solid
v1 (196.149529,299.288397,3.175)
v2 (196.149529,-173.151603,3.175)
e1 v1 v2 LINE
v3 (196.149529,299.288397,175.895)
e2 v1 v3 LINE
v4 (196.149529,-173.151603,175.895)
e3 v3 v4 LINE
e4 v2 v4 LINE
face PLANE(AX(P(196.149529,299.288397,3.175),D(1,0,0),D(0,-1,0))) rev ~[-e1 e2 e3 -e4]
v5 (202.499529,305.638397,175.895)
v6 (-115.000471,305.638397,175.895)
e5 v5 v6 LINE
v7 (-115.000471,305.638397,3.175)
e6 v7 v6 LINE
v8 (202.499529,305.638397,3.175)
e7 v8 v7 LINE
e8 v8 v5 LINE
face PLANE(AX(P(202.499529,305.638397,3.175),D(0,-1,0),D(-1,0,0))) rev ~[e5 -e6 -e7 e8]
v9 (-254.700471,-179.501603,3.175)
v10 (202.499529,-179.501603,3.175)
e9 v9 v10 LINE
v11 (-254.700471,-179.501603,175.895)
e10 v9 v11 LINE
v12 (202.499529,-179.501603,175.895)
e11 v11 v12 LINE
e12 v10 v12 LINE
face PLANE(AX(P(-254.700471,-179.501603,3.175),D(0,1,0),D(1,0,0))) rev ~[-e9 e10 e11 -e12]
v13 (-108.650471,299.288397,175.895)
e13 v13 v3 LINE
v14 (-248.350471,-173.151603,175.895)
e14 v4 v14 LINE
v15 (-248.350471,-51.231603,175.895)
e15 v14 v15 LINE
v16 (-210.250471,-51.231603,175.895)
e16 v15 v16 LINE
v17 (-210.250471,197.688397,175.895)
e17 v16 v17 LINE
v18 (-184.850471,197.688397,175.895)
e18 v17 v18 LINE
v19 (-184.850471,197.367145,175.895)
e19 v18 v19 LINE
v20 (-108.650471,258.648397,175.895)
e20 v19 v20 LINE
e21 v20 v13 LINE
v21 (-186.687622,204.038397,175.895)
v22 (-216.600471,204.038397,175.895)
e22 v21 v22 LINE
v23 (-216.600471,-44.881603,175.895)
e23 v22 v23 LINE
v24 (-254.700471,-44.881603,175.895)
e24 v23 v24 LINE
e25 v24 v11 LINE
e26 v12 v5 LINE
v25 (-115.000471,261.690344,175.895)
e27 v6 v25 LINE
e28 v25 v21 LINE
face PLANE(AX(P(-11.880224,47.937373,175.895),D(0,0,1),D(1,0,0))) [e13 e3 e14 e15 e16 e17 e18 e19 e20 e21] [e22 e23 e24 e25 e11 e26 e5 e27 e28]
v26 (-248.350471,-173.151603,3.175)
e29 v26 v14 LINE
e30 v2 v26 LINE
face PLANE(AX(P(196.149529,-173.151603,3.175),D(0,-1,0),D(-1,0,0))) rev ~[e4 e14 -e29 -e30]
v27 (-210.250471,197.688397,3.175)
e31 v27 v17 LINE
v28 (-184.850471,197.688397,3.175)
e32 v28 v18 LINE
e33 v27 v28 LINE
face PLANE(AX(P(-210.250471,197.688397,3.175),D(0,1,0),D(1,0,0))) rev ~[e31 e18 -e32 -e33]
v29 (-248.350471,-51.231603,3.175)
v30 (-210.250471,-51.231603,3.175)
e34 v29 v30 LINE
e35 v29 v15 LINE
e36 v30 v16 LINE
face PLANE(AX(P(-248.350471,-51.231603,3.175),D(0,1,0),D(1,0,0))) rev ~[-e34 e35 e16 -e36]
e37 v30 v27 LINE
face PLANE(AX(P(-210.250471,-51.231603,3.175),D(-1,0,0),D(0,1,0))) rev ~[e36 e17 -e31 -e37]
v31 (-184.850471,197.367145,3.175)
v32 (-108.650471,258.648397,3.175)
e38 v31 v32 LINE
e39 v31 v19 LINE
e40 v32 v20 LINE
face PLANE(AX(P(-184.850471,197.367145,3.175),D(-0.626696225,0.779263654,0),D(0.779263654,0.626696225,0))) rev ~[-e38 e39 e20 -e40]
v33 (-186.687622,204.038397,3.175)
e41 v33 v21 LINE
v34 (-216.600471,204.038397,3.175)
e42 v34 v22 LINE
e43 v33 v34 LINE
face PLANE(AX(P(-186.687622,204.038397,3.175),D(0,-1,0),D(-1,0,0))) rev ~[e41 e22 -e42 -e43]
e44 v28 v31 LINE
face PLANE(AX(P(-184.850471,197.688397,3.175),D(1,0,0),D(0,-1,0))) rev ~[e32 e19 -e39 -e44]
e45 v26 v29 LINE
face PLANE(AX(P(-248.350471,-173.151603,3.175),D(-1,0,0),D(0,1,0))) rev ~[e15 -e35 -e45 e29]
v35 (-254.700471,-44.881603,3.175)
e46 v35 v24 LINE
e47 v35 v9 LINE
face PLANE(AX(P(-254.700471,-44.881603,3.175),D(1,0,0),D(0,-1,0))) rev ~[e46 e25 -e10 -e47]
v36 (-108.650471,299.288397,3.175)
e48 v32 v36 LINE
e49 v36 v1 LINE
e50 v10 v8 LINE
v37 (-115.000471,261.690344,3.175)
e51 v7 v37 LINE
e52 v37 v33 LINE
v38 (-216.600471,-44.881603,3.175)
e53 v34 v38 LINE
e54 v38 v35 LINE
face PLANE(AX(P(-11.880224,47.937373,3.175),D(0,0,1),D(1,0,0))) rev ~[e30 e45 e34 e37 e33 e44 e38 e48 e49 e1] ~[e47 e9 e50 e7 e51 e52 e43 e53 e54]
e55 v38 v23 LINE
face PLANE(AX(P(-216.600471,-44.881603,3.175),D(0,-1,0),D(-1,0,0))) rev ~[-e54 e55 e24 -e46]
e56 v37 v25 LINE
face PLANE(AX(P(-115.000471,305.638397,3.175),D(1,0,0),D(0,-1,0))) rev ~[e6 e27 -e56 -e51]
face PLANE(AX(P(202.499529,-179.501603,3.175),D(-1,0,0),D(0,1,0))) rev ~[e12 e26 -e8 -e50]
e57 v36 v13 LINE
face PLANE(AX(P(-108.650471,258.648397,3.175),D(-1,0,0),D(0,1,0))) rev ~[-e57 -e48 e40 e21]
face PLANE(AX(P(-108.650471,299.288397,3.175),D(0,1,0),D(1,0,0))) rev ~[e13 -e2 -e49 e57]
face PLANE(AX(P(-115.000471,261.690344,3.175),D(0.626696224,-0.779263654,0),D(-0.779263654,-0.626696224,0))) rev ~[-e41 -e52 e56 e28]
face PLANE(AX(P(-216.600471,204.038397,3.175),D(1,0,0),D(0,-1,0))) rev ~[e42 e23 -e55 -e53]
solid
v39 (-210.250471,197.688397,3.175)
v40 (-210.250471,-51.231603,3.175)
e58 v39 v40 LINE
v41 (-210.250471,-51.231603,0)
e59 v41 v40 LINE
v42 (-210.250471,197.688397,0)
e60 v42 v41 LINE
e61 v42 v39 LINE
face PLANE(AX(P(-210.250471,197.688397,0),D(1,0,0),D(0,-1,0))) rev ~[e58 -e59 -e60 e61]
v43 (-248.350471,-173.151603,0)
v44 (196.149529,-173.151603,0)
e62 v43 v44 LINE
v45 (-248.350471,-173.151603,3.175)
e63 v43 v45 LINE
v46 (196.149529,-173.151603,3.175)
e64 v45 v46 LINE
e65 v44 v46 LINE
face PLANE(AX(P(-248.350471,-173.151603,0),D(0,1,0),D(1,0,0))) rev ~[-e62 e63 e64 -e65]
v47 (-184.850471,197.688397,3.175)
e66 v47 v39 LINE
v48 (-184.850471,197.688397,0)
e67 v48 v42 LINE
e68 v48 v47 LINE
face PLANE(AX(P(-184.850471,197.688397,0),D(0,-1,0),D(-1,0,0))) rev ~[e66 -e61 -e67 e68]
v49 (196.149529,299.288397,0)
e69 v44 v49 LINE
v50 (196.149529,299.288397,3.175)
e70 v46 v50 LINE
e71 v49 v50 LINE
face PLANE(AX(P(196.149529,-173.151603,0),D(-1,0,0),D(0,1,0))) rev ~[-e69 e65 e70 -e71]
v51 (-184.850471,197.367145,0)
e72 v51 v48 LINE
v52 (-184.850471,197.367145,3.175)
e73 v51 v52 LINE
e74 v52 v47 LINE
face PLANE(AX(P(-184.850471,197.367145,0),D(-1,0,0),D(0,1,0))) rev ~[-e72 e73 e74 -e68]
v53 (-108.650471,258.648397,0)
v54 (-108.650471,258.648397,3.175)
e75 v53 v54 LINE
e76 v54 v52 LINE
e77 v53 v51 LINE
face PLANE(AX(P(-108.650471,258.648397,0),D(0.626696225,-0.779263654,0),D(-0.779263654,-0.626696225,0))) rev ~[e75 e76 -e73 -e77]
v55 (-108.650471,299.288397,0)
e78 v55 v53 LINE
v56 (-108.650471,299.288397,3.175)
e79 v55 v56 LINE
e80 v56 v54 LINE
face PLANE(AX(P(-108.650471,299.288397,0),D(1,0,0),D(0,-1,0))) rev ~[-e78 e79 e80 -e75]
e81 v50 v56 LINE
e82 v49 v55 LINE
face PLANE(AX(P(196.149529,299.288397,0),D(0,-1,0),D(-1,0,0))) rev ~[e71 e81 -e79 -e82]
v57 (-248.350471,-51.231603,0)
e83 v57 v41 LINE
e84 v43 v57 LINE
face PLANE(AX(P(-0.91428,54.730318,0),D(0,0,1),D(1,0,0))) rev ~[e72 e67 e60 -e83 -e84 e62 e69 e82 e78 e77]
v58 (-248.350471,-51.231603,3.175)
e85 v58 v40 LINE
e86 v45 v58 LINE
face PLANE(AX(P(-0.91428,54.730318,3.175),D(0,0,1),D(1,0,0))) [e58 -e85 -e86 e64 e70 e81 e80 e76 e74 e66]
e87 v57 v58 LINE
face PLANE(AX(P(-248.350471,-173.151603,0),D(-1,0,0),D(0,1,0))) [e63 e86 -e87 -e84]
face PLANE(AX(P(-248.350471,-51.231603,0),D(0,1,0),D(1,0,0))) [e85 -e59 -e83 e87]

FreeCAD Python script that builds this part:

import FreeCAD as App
import Part
import Sketcher
from FreeCAD import Vector
Q = App.Units.Quantity

doc = App.newDocument("Part")
body = doc.addObject("PartDesign::Body", "Body")

sketch1 = body.newObject("Sketcher::SketchObject", "Sketch")
sketch1.AttachmentSupport = (doc.getObject("XY_Plane"), [""])
sketch1.MapMode = "FlatFace"
sketch1.addGeometry(Part.LineSegment(Vector(196.15, -173.15, 0), Vector(196.15, 299.29, 0)), False)
sketch1.addGeometry(Part.LineSegment(Vector(196.15, 299.29, 0), Vector(-108.65, 299.29, 0)), False)
sketch1.addGeometry(Part.LineSegment(Vector(-108.65, 299.29, 0), Vector(-108.65, 258.65, 0)), False)
sketch1.addGeometry(Part.LineSegment(Vector(-108.65, 258.65, 0), Vector(-184.85, 197.37, 0)), False)
sketch1.addGeometry(Part.LineSegment(Vector(-184.85, 197.37, 0), Vector(-184.85, 197.69, 0)), False)
sketch1.addGeometry(Part.LineSegment(Vector(-184.85, 197.69, 0), Vector(-210.25, 197.69, 0)), False)
sketch1.addGeometry(Part.LineSegment(Vector(-210.25, 197.69, 0), Vector(-210.25, -51.23, 0)), False)
sketch1.addGeometry(Part.LineSegment(Vector(-210.25, -51.23, 0), Vector(-248.35, -51.23, 0)), False)
sketch1.addGeometry(Part.LineSegment(Vector(-248.35, -51.23, 0), Vector(-248.35, -173.15, 0)), False)
sketch1.addGeometry(Part.LineSegment(Vector(-248.35, -173.15, 0), Vector(196.15, -173.15, 0)), False)
sketch1.addConstraint(Sketcher.Constraint("Coincident", 0, 2, 1, 1))
sketch1.addConstraint(Sketcher.Constraint("Coincident", 1, 2, 2, 1))
sketch1.addConstraint(Sketcher.Constraint("Coincident", 2, 2, 3, 1))
sketch1.addConstraint(Sketcher.Constraint("Coincident", 3, 2, 4, 1))
sketch1.addConstraint(Sketcher.Constraint("Coincident", 4, 2, 5, 1))
sketch1.addConstraint(Sketcher.Constraint("Coincident", 5, 2, 6, 1))
sketch1.addConstraint(Sketcher.Constraint("Coincident", 6, 2, 7, 1))
sketch1.addConstraint(Sketcher.Constraint("Coincident", 7, 2, 8, 1))
sketch1.addConstraint(Sketcher.Constraint("Coincident", 8, 2, 9, 1))
sketch1.addConstraint(Sketcher.Constraint("Coincident", 9, 2, 0, 1))
sketch1.addConstraint(Sketcher.Constraint("Vertical", 0))
sketch1.addConstraint(Sketcher.Constraint("Horizontal", 1))
sketch1.addConstraint(Sketcher.Constraint("Vertical", 2))
sketch1.addConstraint(Sketcher.Constraint("Vertical", 4))
sketch1.addConstraint(Sketcher.Constraint("Horizontal", 5))
sketch1.addConstraint(Sketcher.Constraint("Vertical", 6))
sketch1.addConstraint(Sketcher.Constraint("Horizontal", 7))
sketch1.addConstraint(Sketcher.Constraint("Vertical", 8))
sketch1.addConstraint(Sketcher.Constraint("Horizontal", 9))
sketch1.addConstraint(Sketcher.Constraint("DistanceX", 1, 2, 1, 1, Q("12 in")))
sketch1.addConstraint(Sketcher.Constraint("DistanceX", 5, 2, 5, 1, Q("1 in")))
sketch1.addConstraint(Sketcher.Constraint("DistanceX", 7, 2, 7, 1, Q("1.5 in")))
sketch1.addConstraint(Sketcher.Constraint("DistanceX", 9, 1, 9, 2, Q("17.5 in")))
sketch1.addConstraint(Sketcher.Constraint("DistanceY", 0, 1, 0, 2, Q("18.6 in")))
sketch1.addConstraint(Sketcher.Constraint("DistanceY", 2, 2, 2, 1, Q("1.6 in")))
sketch1.addConstraint(Sketcher.Constraint("DistanceY", 6, 2, 6, 1, Q("9.8 in")))
sketch1.addConstraint(Sketcher.Constraint("DistanceY", 8, 2, 8, 1, Q("4.8 in")))
sketch1.addConstraint(Sketcher.Constraint("Distance", 3, Q("97.78462 mm")))
sketch1.addConstraint(Sketcher.Constraint("DistanceX", -1, 1, 0, 2, Q("196.149529 mm")))
sketch1.addConstraint(Sketcher.Constraint("DistanceY", -1, 1, 0, 2, Q("299.288397 mm")))
pad1 = body.newObject("PartDesign::Pad", "Pad")
pad1.Profile = sketch1
pad1.Length = Q("0.125 in")
body2 = doc.addObject("PartDesign::Body", "Body001")

sketch2 = body2.newObject("Sketcher::SketchObject", "Sketch001")
sketch2.AttachmentSupport = (doc.getObject("XY_Plane001"), [""])
sketch2.MapMode = "FlatFace"
sketch2.AttachmentOffset = App.Placement(Vector(0, 0, 0.125 * 25.4), App.Rotation())
sketch2.addGeometry(Part.LineSegment(Vector(202.5, 305.64, 0), Vector(-115, 305.64, 0)), False)
sketch2.addGeometry(Part.LineSegment(Vector(-115, 305.64, 0), Vector(-115, 261.69, 0)), False)
sketch2.addGeometry(Part.LineSegment(Vector(-115, 261.69, 0), Vector(-186.69, 204.04, 0)), False)
sketch2.addGeometry(Part.LineSegment(Vector(-186.69, 204.04, 0), Vector(-216.6, 204.04, 0)), False)
sketch2.addGeometry(Part.LineSegment(Vector(-216.6, 204.04, 0), Vector(-216.6, -44.88, 0)), False)
sketch2.addGeometry(Part.LineSegment(Vector(-216.6, -44.88, 0), Vector(-254.7, -44.88, 0)), False)
sketch2.addGeometry(Part.LineSegment(Vector(-254.7, -44.88, 0), Vector(-254.7, -179.5, 0)), False)
sketch2.addGeometry(Part.LineSegment(Vector(-254.7, -179.5, 0), Vector(202.5, -179.5, 0)), False)
sketch2.addGeometry(Part.LineSegment(Vector(202.5, -179.5, 0), Vector(202.5, 305.64, 0)), False)
sketch2.addGeometry(Part.LineSegment(Vector(-248.35, -51.23, 0), Vector(-210.25, -51.23, 0)), False)
sketch2.addGeometry(Part.LineSegment(Vector(-210.25, -51.23, 0), Vector(-210.25, 197.69, 0)), False)
sketch2.addGeometry(Part.LineSegment(Vector(-210.25, 197.69, 0), Vector(-184.85, 197.69, 0)), False)
sketch2.addGeometry(Part.LineSegment(Vector(-184.85, 197.69, 0), Vector(-184.85, 197.37, 0)), False)
sketch2.addGeometry(Part.LineSegment(Vector(-184.85, 197.37, 0), Vector(-108.65, 258.65, 0)), False)
sketch2.addGeometry(Part.LineSegment(Vector(-108.65, 258.65, 0), Vector(-108.65, 299.29, 0)), False)
sketch2.addGeometry(Part.LineSegment(Vector(-108.65, 299.29, 0), Vector(196.15, 299.29, 0)), False)
sketch2.addGeometry(Part.LineSegment(Vector(196.15, 299.29, 0), Vector(196.15, -173.15, 0)), False)
sketch2.addGeometry(Part.LineSegment(Vector(196.15, -173.15, 0), Vector(-248.35, -173.15, 0)), False)
sketch2.addGeometry(Part.LineSegment(Vector(-248.35, -173.15, 0), Vector(-248.35, -51.23, 0)), False)
sketch2.addConstraint(Sketcher.Constraint("Coincident", 0, 2, 1, 1))
sketch2.addConstraint(Sketcher.Constraint("Coincident", 1, 2, 2, 1))
sketch2.addConstraint(Sketcher.Constraint("Coincident", 2, 2, 3, 1))
sketch2.addConstraint(Sketcher.Constraint("Coincident", 3, 2, 4, 1))
sketch2.addConstraint(Sketcher.Constraint("Coincident", 4, 2, 5, 1))
sketch2.addConstraint(Sketcher.Constraint("Coincident", 5, 2, 6, 1))
sketch2.addConstraint(Sketcher.Constraint("Coincident", 6, 2, 7, 1))
sketch2.addConstraint(Sketcher.Constraint("Coincident", 7, 2, 8, 1))
sketch2.addConstraint(Sketcher.Constraint("Coincident", 8, 2, 0, 1))
sketch2.addConstraint(Sketcher.Constraint("Coincident", 9, 2, 10, 1))
sketch2.addConstraint(Sketcher.Constraint("Coincident", 10, 2, 11, 1))
sketch2.addConstraint(Sketcher.Constraint("Coincident", 11, 2, 12, 1))
sketch2.addConstraint(Sketcher.Constraint("Coincident", 12, 2, 13, 1))
sketch2.addConstraint(Sketcher.Constraint("Coincident", 13, 2, 14, 1))
sketch2.addConstraint(Sketcher.Constraint("Coincident", 14, 2, 15, 1))
sketch2.addConstraint(Sketcher.Constraint("Coincident", 15, 2, 16, 1))
sketch2.addConstraint(Sketcher.Constraint("Coincident", 16, 2, 17, 1))
sketch2.addConstraint(Sketcher.Constraint("Coincident", 17, 2, 18, 1))
sketch2.addConstraint(Sketcher.Constraint("Coincident", 18, 2, 9, 1))
sketch2.addConstraint(Sketcher.Constraint("Horizontal", 0))
sketch2.addConstraint(Sketcher.Constraint("Vertical", 1))
sketch2.addConstraint(Sketcher.Constraint("Horizontal", 3))
sketch2.addConstraint(Sketcher.Constraint("Vertical", 4))
sketch2.addConstraint(Sketcher.Constraint("Horizontal", 5))
sketch2.addConstraint(Sketcher.Constraint("Vertical", 6))
sketch2.addConstraint(Sketcher.Constraint("Horizontal", 7))
sketch2.addConstraint(Sketcher.Constraint("Vertical", 8))
sketch2.addConstraint(Sketcher.Constraint("Horizontal", 9))
sketch2.addConstraint(Sketcher.Constraint("Vertical", 10))
sketch2.addConstraint(Sketcher.Constraint("Horizontal", 11))
sketch2.addConstraint(Sketcher.Constraint("Vertical", 12))
sketch2.addConstraint(Sketcher.Constraint("Vertical", 14))
sketch2.addConstraint(Sketcher.Constraint("Horizontal", 15))
sketch2.addConstraint(Sketcher.Constraint("Vertical", 16))
sketch2.addConstraint(Sketcher.Constraint("Horizontal", 17))
sketch2.addConstraint(Sketcher.Constraint("Vertical", 18))
sketch2.addConstraint(Sketcher.Constraint("Parallel", 2, 13))
sketch2.addConstraint(Sketcher.Constraint("Equal", 5, 9))
sketch2.addConstraint(Sketcher.Constraint("Equal", 4, 10))
sketch2.addConstraint(Sketcher.Constraint("DistanceX", 7, 1, 7, 2, Q("18 in")))
sketch2.addConstraint(Sketcher.Constraint("DistanceX", 11, 1, 11, 2, Q("1 in")))
sketch2.addConstraint(Sketcher.Constraint("DistanceX", 15, 1, 15, 2, Q("12 in")))
sketch2.addConstraint(Sketcher.Constraint("DistanceX", 0, 2, 0, 1, Q("12.5 in")))
sketch2.addConstraint(Sketcher.Constraint("DistanceX", 5, 2, 5, 1, Q("1.5 in")))
sketch2.addConstraint(Sketcher.Constraint("DistanceX", 17, 2, 17, 1, Q("17.5 in")))
sketch2.addConstraint(Sketcher.Constraint("DistanceY", 4, 2, 4, 1, Q("9.8 in")))
sketch2.addConstraint(Sketcher.Constraint("DistanceY", 6, 2, 6, 1, Q("5.3 in")))
sketch2.addConstraint(Sketcher.Constraint("DistanceY", 8, 1, 8, 2, Q("19.1 in")))
sketch2.addConstraint(Sketcher.Constraint("DistanceY", 14, 1, 14, 2, Q("1.6 in")))
sketch2.addConstraint(Sketcher.Constraint("DistanceY", 16, 2, 16, 1, Q("18.6 in")))
sketch2.addConstraint(Sketcher.Constraint("DistanceY", 18, 1, 18, 2, Q("4.8 in")))
sketch2.addConstraint(Sketcher.Constraint("DistanceX", 4, 2, 9, 2, Q("0.25 in")))
sketch2.addConstraint(Sketcher.Constraint("DistanceY", 9, 2, 4, 2, Q("0.25 in")))
sketch2.addConstraint(Sketcher.Constraint("DistanceX", 3, 2, 3, 1, Q("29.912849 mm")))
sketch2.addConstraint(Sketcher.Constraint("DistanceY", 12, 2, 1, 2, Q("64.323199 mm")))
sketch2.addConstraint(Sketcher.Constraint("DistanceX", 0, 2, -1, 1, Q("115.000471 mm")))
sketch2.addConstraint(Sketcher.Constraint("DistanceY", -1, 1, 0, 2, Q("305.638397 mm")))
pad2 = body2.newObject("PartDesign::Pad", "Pad001")
pad2.Profile = sketch2
pad2.Length = Q("6.8 in")

doc.recompute()
